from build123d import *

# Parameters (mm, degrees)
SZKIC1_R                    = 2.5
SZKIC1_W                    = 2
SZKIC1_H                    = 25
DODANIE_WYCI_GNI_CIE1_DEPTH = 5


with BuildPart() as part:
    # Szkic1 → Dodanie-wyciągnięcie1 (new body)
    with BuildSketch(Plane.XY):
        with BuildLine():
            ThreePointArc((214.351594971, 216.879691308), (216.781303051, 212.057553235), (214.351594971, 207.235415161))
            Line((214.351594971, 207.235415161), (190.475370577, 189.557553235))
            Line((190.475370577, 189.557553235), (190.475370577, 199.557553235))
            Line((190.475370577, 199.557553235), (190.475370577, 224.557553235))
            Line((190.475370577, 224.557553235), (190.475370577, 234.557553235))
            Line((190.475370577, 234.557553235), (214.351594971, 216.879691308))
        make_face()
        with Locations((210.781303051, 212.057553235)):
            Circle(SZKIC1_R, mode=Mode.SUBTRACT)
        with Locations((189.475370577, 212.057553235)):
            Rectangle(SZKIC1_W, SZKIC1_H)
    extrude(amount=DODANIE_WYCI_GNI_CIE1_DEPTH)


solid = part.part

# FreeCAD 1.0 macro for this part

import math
import FreeCAD as App
import Part
import Sketcher
from FreeCAD import Vector
Q = App.Units.Quantity

doc = App.newDocument("Part")
body = doc.addObject("PartDesign::Body", "Body")

sketch1 = body.newObject("Sketcher::SketchObject", "Sketch")
sketch1.AttachmentSupport = (doc.getObject("XY_Plane"), [""])
sketch1.MapMode = "FlatFace"
sketch1.addGeometry([
    Part.ArcOfCircle(Part.Circle(Vector(210.8, 212.1, 0), Vector(0, 0, 1), 6), math.radians(-53), math.radians(53)),
    Part.LineSegment(Vector(214.4, 216.9, 0), Vector(190.5, 234.6, 0)),
    Part.LineSegment(Vector(190.5, 234.6, 0), Vector(190.5, 224.6, 0)),
    Part.LineSegment(Vector(190.5, 224.6, 0), Vector(188.5, 224.6, 0)),
    Part.LineSegment(Vector(188.5, 224.6, 0), Vector(188.5, 199.6, 0)),
    Part.LineSegment(Vector(188.5, 199.6, 0), Vector(190.5, 199.6, 0)),
    Part.LineSegment(Vector(190.5, 199.6, 0), Vector(190.5, 189.6, 0)),
    Part.LineSegment(Vector(190.5, 189.6, 0), Vector(214.4, 207.2, 0)),
    Part.Circle(Vector(210.8, 212.1, 0), Vector(0, 0, 1), 2.5),
], False)
sketch1.addConstraint([
    Sketcher.Constraint("Tangent", 0, 2, 1, 1),
    Sketcher.Constraint("Coincident", 1, 2, 2, 1),
    Sketcher.Constraint("Coincident", 2, 2, 3, 1),
    Sketcher.Constraint("Coincident", 3, 2, 4, 1),
    Sketcher.Constraint("Coincident", 4, 2, 5, 1),
    Sketcher.Constraint("Coincident", 5, 2, 6, 1),
    Sketcher.Constraint("Coincident", 6, 2, 7, 1),
    Sketcher.Constraint("Tangent", 7, 2, 0, 1),
    Sketcher.Constraint("Vertical", 2),
    Sketcher.Constraint("Horizontal", 3),
    Sketcher.Constraint("Vertical", 4),
    Sketcher.Constraint("Horizontal", 5),
    Sketcher.Constraint("Vertical", 6),
    Sketcher.Constraint("Coincident", 8, 3, 0, 3),
    Sketcher.Constraint("Vertical", 2, 2, 5, 2),
    Sketcher.Constraint("Vertical", 0, 2, 7, 2),
    Sketcher.Constraint("Equal", 2, 6),
    Sketcher.Constraint("Diameter", 8, Q("5 mm")),
    Sketcher.Constraint("Radius", 0, Q("6 mm")),
    Sketcher.Constraint("DistanceX", 3, 2, 3, 1, Q("2 mm")),
    Sketcher.Constraint("DistanceY", 2, 2, 2, 1, Q("10 mm")),
    Sketcher.Constraint("DistanceY", 4, 2, 4, 1, Q("25 mm")),
    Sketcher.Constraint("DistanceY", -1, 1, 0, 2, Q("216.879691 mm")),
    Sketcher.Constraint("DistanceX", -1, 1, 1, 2, Q("190.475371 mm")),
    Sketcher.Constraint("DistanceX", 0, 3, 0, 2, Q("3.570292 mm")),
])
pad1 = body.newObject("PartDesign::Pad", "Pad")
pad1.Profile = sketch1
pad1.Length = 5

doc.recompute()
